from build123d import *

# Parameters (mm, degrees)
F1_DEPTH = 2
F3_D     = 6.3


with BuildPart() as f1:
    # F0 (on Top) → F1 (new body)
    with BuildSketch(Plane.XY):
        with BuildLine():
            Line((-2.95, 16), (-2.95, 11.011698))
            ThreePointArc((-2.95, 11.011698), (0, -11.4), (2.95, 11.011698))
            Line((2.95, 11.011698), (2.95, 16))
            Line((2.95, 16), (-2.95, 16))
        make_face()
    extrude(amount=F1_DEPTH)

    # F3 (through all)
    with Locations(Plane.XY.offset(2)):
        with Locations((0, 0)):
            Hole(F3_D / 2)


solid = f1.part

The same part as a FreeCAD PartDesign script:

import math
import FreeCAD as App
import Part
import Sketcher
from FreeCAD import Vector

doc = App.newDocument("Part")
body = doc.addObject("PartDesign::Body", "Body")

# Sketch on XY plane
sketch1 = doc.addObject("Sketcher::SketchObject", "Sketch")
body.addObject(sketch1)
sketch1.AttachmentSupport = (doc.XY_Plane, [""])
sketch1.MapMode = "FlatFace"
sketch1.addGeometry(Part.LineSegment(Vector(-3, 16, 0), Vector(-3, 11, 0)), False)
sketch1.addGeometry(Part.ArcOfCircle(Part.Circle(Vector(0, 0, 0), Vector(0, 0, 1), 11.4), math.radians(105), math.radians(435)), False)
sketch1.addGeometry(Part.LineSegment(Vector(3, 11, 0), Vector(3, 16, 0)), False)
sketch1.addGeometry(Part.LineSegment(Vector(3, 16, 0), Vector(-3, 16, 0)), False)
sketch1.addConstraint(Sketcher.Constraint("Coincident", 0, 2, 1, 1))
sketch1.addConstraint(Sketcher.Constraint("Coincident", 1, 2, 2, 1))
sketch1.addConstraint(Sketcher.Constraint("Coincident", 2, 2, 3, 1))
sketch1.addConstraint(Sketcher.Constraint("Coincident", 3, 2, 0, 1))
sketch1.addConstraint(Sketcher.Constraint("Vertical", 0))
sketch1.addConstraint(Sketcher.Constraint("Vertical", 2))
sketch1.addConstraint(Sketcher.Constraint("Horizontal", 3))
sketch1.addConstraint(Sketcher.Constraint("Coincident", 1, 3, -1, 1))
sketch1.addConstraint(Sketcher.Constraint("Horizontal", 0, 2, 1, 2))
sketch1.addConstraint(Sketcher.Constraint("Radius", 1, 11.4))
sketch1.addConstraint(Sketcher.Constraint("DistanceX", 3, 2, 3, 1, 5.9))
sketch1.addConstraint(Sketcher.Constraint("DistanceY", -1, 1, 2, 2, 16.0))
pad1 = doc.addObject("PartDesign::Pad", "Pad")
body.addObject(pad1)
pad1.Profile = sketch1
pad1.Length = 2

# Sketch on XY plane
sketch2 = doc.addObject("Sketcher::SketchObject", "Sketch001")
body.addObject(sketch2)
sketch2.AttachmentSupport = (doc.XY_Plane, [""])
sketch2.MapMode = "FlatFace"
sketch2.AttachmentOffset = App.Placement(Vector(0, 0, 2), App.Rotation())
sketch2.addGeometry(Part.Circle(Vector(0, 0, 0), Vector(0, 0, 1), 3.1), False)
sketch2.addConstraint(Sketcher.Constraint("Coincident", 0, 3, -1, 1))
sketch2.addConstraint(Sketcher.Constraint("Diameter", 0, 6.3))
doc.recompute()
hole = doc.addObject("PartDesign::Hole", "Hole")
body.addObject(hole)
hole.Profile = sketch2
hole.ThreadType = "None"
hole.Diameter = 6.3
hole.DepthType = "ThroughAll"

doc.recompute()
